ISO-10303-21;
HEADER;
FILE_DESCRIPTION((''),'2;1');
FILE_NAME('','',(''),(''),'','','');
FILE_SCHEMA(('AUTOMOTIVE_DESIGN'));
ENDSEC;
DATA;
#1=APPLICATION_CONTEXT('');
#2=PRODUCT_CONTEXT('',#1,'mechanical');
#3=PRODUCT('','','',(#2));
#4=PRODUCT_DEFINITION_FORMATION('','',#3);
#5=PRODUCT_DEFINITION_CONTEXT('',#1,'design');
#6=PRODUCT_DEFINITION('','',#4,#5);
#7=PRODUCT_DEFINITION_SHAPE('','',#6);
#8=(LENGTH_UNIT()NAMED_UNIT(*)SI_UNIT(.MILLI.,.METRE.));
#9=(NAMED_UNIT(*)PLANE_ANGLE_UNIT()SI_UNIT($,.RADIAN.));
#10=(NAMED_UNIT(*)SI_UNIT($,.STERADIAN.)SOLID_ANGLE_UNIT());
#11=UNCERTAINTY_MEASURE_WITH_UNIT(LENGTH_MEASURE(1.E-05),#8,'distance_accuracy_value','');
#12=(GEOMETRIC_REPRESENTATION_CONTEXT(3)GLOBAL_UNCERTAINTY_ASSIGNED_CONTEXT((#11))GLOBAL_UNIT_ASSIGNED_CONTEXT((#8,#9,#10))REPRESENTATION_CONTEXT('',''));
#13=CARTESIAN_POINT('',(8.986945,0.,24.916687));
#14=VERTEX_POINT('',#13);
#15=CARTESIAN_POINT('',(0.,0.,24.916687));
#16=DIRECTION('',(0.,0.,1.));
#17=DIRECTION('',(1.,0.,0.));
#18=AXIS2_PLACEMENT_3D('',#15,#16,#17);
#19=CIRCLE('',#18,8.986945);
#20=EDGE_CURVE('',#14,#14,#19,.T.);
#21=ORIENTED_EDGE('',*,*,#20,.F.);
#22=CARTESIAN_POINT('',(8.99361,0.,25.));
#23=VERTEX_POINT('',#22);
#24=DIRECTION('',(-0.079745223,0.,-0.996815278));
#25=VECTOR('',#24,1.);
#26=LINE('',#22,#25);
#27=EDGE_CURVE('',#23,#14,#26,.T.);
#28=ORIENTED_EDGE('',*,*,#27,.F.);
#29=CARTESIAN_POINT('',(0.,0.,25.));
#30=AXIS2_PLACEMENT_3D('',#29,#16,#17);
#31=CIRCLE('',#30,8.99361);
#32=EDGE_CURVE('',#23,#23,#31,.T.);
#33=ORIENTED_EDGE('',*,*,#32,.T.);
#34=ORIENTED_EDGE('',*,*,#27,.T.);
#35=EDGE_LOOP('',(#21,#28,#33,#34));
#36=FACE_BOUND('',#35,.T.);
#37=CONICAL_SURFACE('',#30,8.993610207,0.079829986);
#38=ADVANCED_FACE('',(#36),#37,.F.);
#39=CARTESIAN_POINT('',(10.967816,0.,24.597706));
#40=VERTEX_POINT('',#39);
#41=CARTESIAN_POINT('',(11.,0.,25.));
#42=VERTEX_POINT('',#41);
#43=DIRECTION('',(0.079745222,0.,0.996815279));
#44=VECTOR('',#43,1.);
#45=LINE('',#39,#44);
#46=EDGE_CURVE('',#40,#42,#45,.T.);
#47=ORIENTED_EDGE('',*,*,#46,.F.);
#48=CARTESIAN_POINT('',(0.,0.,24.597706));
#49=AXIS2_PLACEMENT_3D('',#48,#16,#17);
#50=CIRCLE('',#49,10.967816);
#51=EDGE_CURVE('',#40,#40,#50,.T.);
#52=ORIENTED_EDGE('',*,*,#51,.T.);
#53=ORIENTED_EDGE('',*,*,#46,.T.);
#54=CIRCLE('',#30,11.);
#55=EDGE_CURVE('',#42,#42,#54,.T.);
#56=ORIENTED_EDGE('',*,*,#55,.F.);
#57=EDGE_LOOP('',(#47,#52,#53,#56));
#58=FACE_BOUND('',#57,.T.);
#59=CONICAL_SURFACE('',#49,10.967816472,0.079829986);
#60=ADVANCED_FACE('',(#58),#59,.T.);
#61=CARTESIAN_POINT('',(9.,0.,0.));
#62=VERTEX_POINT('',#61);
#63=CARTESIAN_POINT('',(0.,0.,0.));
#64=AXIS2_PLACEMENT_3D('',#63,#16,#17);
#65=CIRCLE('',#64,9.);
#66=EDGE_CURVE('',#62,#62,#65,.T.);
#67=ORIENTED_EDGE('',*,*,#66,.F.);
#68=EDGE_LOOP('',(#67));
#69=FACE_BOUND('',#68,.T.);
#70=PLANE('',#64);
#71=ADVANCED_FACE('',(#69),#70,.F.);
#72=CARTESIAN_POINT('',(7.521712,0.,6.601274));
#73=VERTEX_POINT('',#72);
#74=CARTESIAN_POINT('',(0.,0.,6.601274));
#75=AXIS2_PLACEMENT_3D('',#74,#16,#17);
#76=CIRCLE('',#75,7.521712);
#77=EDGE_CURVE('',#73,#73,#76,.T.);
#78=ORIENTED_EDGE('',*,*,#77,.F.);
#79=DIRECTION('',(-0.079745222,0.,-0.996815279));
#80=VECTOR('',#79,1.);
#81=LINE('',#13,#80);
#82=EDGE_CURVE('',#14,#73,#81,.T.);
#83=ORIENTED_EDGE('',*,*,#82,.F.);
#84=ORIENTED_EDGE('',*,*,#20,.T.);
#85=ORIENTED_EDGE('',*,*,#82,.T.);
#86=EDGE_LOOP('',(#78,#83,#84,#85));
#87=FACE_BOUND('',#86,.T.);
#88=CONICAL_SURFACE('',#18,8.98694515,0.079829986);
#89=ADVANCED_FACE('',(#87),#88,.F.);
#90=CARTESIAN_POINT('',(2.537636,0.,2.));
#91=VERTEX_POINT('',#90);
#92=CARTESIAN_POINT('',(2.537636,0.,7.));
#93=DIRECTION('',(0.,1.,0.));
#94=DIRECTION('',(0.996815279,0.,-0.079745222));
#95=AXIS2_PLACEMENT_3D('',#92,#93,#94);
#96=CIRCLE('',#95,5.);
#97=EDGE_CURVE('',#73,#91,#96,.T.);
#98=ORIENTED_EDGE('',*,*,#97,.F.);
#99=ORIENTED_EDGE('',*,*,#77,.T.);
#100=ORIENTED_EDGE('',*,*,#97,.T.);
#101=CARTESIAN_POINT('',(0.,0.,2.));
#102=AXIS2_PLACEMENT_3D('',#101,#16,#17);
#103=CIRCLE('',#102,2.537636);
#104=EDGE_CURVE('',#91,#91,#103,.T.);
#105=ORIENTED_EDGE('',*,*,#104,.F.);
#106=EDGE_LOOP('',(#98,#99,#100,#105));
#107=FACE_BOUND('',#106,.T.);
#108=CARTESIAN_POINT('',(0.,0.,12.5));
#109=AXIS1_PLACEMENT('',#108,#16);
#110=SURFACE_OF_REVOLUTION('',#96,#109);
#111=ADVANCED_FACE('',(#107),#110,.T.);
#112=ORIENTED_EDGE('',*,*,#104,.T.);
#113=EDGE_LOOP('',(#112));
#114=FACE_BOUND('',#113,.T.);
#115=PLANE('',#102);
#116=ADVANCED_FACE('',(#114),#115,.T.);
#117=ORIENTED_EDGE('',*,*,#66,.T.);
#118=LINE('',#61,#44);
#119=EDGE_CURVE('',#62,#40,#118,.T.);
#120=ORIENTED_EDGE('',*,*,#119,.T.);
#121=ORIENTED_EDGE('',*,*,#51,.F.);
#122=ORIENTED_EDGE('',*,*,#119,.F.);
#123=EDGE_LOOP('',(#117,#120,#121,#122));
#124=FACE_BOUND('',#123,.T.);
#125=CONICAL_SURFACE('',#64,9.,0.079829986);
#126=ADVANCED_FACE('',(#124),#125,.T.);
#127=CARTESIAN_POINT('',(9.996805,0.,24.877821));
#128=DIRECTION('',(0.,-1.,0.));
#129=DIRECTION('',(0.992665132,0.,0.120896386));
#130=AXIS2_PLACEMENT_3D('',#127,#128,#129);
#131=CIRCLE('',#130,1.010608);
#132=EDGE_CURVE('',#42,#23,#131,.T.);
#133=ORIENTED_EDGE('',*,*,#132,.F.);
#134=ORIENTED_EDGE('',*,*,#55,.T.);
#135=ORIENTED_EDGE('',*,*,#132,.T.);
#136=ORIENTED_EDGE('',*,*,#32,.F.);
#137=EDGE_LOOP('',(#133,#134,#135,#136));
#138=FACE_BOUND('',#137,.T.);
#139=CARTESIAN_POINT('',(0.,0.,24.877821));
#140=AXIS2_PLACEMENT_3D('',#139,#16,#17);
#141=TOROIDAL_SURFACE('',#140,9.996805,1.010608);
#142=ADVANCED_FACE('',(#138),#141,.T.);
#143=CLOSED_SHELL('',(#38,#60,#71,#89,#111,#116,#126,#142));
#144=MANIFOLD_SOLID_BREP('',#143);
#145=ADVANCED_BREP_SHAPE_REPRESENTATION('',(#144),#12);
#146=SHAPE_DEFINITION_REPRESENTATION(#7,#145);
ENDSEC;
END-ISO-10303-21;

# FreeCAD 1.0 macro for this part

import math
import FreeCAD as App
import Part
import Sketcher
from FreeCAD import Vector

doc = App.newDocument("Part")
body = doc.addObject("PartDesign::Body", "Body")

sketch1 = body.newObject("Sketcher::SketchObject", "Sketch")
sketch1.AttachmentSupport = (doc.getObject("XZ_Plane"), [""])
sketch1.MapMode = "FlatFace"
sketch1.addGeometry(Part.LineSegment(Vector(0, 2, 0), Vector(0, 0, 0)), False)
sketch1.addGeometry(Part.LineSegment(Vector(0, 0, 0), Vector(9, 0, 0)), False)
sketch1.addGeometry(Part.LineSegment(Vector(9, 0, 0), Vector(10.97, 24.6, 0)), False)
sketch1.addGeometry(Part.LineSegment(Vector(10.97, 24.6, 0), Vector(11, 25, 0)), False)
sketch1.addGeometry(Part.ArcOfCircle(Part.Circle(Vector(10, 24.88, 0), Vector(0, 0, 1), 1.01), math.radians(7), math.radians(173)), False)
sketch1.addGeometry(Part.LineSegment(Vector(8.99, 25, 0), Vector(8.99, 24.92, 0)), False)
sketch1.addGeometry(Part.LineSegment(Vector(8.99, 24.92, 0), Vector(7.52, 6.6, 0)), False)
sketch1.addGeometry(Part.ArcOfCircle(Part.Circle(Vector(2.54, 7, 0), Vector(0, 0, 1), 5), math.radians(-90), math.radians(-5)), False)
sketch1.addGeometry(Part.LineSegment(Vector(2.54, 2, 0), Vector(0, 2, 0)), False)
sketch1.addConstraint(Sketcher.Constraint("Coincident", 0, 2, 1, 1))
sketch1.addConstraint(Sketcher.Constraint("Coincident", 1, 2, 2, 1))
sketch1.addConstraint(Sketcher.Constraint("Coincident", 2, 2, 3, 1))
sketch1.addConstraint(Sketcher.Constraint("Coincident", 3, 2, 4, 1))
sketch1.addConstraint(Sketcher.Constraint("Coincident", 4, 2, 5, 1))
sketch1.addConstraint(Sketcher.Constraint("Coincident", 5, 2, 6, 1))
sketch1.addConstraint(Sketcher.Constraint("Tangent", 6, 2, 7, 2))
sketch1.addConstraint(Sketcher.Constraint("Tangent", 7, 1, 8, 1))
sketch1.addConstraint(Sketcher.Constraint("Coincident", 8, 2, 0, 1))
sketch1.addConstraint(Sketcher.Constraint("Vertical", 0))
sketch1.addConstraint(Sketcher.Constraint("Horizontal", 1))
sketch1.addConstraint(Sketcher.Constraint("Horizontal", 8))
sketch1.addConstraint(Sketcher.Constraint("Coincident", 0, 2, -1, 1))
sketch1.addConstraint(Sketcher.Constraint("Parallel", 2, 3))
sketch1.addConstraint(Sketcher.Constraint("Parallel", 3, 5))
sketch1.addConstraint(Sketcher.Constraint("Parallel", 5, 6))
sketch1.addConstraint(Sketcher.Constraint("Horizontal", 3, 2, 4, 2))
sketch1.addConstraint(Sketcher.Constraint("Radius", 7, 5.0))
sketch1.addConstraint(Sketcher.Constraint("DistanceX", 1, 1, 1, 2, 9.0))
sketch1.addConstraint(Sketcher.Constraint("DistanceY", 0, 2, 0, 1, 2.0))
sketch1.addConstraint(Sketcher.Constraint("DistanceX", -1, 1, 3, 2, 11.0))
sketch1.addConstraint(Sketcher.Constraint("DistanceY", -1, 1, 3, 2, 25.0))
sketch1.addConstraint(Sketcher.Constraint("Radius", 4, 1.010608))
sketch1.addConstraint(Sketcher.Constraint("Distance", 3, 0.403579))
sketch1.addConstraint(Sketcher.Constraint("Distance", 5, 0.083579))
sketch1.addConstraint(Sketcher.Constraint("DistanceX", 8, 2, 8, 1, 2.537636))
revolution = body.newObject("PartDesign::Revolution", "Revolution")
revolution.Profile = sketch1
revolution.ReferenceAxis = (sketch1, ["V_Axis"])
revolution.Angle = 360

doc.recompute()
